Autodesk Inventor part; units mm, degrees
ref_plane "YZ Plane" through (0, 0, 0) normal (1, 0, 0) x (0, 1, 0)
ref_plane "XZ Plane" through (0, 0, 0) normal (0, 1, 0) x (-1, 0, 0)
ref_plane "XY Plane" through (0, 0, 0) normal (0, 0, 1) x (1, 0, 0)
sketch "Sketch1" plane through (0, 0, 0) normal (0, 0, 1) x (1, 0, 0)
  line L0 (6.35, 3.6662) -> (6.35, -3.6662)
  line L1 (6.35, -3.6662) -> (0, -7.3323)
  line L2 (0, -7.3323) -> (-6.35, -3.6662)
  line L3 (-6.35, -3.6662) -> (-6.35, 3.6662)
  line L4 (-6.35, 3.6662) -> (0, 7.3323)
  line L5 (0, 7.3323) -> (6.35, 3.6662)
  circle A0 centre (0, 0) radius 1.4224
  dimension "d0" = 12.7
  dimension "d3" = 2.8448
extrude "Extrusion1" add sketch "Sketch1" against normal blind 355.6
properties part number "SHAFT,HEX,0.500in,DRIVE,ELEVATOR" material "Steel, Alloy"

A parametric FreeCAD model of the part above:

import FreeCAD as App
import Part
import Sketcher
from FreeCAD import Vector
Q = App.Units.Quantity

doc = App.newDocument("Part")
body = doc.addObject("PartDesign::Body", "Body")

sketch1 = body.newObject("Sketcher::SketchObject", "Sketch")
sketch1.AttachmentSupport = (doc.getObject("XY_Plane"), [""])
sketch1.MapMode = "FlatFace"
sketch1.addGeometry([
    Part.LineSegment(Vector(6.3, -3.7, 0), Vector(6.3, 3.7, 0)),
    Part.LineSegment(Vector(6.3, 3.7, 0), Vector(0, 7.3, 0)),
    Part.LineSegment(Vector(0, 7.3, 0), Vector(-6.3, 3.7, 0)),
    Part.LineSegment(Vector(-6.3, 3.7, 0), Vector(-6.3, -3.7, 0)),
    Part.LineSegment(Vector(-6.3, -3.7, 0), Vector(0, -7.3, 0)),
    Part.LineSegment(Vector(0, -7.3, 0), Vector(6.3, -3.7, 0)),
    Part.Circle(Vector(0, 0, 0), Vector(0, 0, 1), 1.4),
], False)
sketch1.addConstraint([
    Sketcher.Constraint("Coincident", 0, 2, 1, 1),
    Sketcher.Constraint("Coincident", 1, 2, 2, 1),
    Sketcher.Constraint("Coincident", 2, 2, 3, 1),
    Sketcher.Constraint("Coincident", 3, 2, 4, 1),
    Sketcher.Constraint("Coincident", 4, 2, 5, 1),
    Sketcher.Constraint("Coincident", 5, 2, 0, 1),
    Sketcher.Constraint("Vertical", 0),
    Sketcher.Constraint("Vertical", 3),
    Sketcher.Constraint("Coincident", 6, 3, -1, 1),
    Sketcher.Constraint("Symmetric", 0, 2, 3, 2, -1, 1),
    Sketcher.Constraint("Symmetric", 1, 2, 4, 2, -1, 1),
    Sketcher.Constraint("PointOnObject", 1, 2, -2),
    Sketcher.Constraint("Parallel", 2, 5),
    Sketcher.Constraint("Horizontal", 0, 2, 2, 2),
    Sketcher.Constraint("Diameter", 6, Q("0.112 in")),
    Sketcher.Constraint("DistanceX", 2, 2, 0, 2, Q("0.5 in")),
    Sketcher.Constraint("Angle", 1, Q("150.0005 deg")),
    Sketcher.Constraint("DistanceY", 3, 2, 1, 2, Q("0.433 in")),
])
pad1 = body.newObject("PartDesign::Pad", "Pad")
pad1.Profile = sketch1
pad1.Length = Q("14 in")
pad1.Reversed = True

doc.recompute()
